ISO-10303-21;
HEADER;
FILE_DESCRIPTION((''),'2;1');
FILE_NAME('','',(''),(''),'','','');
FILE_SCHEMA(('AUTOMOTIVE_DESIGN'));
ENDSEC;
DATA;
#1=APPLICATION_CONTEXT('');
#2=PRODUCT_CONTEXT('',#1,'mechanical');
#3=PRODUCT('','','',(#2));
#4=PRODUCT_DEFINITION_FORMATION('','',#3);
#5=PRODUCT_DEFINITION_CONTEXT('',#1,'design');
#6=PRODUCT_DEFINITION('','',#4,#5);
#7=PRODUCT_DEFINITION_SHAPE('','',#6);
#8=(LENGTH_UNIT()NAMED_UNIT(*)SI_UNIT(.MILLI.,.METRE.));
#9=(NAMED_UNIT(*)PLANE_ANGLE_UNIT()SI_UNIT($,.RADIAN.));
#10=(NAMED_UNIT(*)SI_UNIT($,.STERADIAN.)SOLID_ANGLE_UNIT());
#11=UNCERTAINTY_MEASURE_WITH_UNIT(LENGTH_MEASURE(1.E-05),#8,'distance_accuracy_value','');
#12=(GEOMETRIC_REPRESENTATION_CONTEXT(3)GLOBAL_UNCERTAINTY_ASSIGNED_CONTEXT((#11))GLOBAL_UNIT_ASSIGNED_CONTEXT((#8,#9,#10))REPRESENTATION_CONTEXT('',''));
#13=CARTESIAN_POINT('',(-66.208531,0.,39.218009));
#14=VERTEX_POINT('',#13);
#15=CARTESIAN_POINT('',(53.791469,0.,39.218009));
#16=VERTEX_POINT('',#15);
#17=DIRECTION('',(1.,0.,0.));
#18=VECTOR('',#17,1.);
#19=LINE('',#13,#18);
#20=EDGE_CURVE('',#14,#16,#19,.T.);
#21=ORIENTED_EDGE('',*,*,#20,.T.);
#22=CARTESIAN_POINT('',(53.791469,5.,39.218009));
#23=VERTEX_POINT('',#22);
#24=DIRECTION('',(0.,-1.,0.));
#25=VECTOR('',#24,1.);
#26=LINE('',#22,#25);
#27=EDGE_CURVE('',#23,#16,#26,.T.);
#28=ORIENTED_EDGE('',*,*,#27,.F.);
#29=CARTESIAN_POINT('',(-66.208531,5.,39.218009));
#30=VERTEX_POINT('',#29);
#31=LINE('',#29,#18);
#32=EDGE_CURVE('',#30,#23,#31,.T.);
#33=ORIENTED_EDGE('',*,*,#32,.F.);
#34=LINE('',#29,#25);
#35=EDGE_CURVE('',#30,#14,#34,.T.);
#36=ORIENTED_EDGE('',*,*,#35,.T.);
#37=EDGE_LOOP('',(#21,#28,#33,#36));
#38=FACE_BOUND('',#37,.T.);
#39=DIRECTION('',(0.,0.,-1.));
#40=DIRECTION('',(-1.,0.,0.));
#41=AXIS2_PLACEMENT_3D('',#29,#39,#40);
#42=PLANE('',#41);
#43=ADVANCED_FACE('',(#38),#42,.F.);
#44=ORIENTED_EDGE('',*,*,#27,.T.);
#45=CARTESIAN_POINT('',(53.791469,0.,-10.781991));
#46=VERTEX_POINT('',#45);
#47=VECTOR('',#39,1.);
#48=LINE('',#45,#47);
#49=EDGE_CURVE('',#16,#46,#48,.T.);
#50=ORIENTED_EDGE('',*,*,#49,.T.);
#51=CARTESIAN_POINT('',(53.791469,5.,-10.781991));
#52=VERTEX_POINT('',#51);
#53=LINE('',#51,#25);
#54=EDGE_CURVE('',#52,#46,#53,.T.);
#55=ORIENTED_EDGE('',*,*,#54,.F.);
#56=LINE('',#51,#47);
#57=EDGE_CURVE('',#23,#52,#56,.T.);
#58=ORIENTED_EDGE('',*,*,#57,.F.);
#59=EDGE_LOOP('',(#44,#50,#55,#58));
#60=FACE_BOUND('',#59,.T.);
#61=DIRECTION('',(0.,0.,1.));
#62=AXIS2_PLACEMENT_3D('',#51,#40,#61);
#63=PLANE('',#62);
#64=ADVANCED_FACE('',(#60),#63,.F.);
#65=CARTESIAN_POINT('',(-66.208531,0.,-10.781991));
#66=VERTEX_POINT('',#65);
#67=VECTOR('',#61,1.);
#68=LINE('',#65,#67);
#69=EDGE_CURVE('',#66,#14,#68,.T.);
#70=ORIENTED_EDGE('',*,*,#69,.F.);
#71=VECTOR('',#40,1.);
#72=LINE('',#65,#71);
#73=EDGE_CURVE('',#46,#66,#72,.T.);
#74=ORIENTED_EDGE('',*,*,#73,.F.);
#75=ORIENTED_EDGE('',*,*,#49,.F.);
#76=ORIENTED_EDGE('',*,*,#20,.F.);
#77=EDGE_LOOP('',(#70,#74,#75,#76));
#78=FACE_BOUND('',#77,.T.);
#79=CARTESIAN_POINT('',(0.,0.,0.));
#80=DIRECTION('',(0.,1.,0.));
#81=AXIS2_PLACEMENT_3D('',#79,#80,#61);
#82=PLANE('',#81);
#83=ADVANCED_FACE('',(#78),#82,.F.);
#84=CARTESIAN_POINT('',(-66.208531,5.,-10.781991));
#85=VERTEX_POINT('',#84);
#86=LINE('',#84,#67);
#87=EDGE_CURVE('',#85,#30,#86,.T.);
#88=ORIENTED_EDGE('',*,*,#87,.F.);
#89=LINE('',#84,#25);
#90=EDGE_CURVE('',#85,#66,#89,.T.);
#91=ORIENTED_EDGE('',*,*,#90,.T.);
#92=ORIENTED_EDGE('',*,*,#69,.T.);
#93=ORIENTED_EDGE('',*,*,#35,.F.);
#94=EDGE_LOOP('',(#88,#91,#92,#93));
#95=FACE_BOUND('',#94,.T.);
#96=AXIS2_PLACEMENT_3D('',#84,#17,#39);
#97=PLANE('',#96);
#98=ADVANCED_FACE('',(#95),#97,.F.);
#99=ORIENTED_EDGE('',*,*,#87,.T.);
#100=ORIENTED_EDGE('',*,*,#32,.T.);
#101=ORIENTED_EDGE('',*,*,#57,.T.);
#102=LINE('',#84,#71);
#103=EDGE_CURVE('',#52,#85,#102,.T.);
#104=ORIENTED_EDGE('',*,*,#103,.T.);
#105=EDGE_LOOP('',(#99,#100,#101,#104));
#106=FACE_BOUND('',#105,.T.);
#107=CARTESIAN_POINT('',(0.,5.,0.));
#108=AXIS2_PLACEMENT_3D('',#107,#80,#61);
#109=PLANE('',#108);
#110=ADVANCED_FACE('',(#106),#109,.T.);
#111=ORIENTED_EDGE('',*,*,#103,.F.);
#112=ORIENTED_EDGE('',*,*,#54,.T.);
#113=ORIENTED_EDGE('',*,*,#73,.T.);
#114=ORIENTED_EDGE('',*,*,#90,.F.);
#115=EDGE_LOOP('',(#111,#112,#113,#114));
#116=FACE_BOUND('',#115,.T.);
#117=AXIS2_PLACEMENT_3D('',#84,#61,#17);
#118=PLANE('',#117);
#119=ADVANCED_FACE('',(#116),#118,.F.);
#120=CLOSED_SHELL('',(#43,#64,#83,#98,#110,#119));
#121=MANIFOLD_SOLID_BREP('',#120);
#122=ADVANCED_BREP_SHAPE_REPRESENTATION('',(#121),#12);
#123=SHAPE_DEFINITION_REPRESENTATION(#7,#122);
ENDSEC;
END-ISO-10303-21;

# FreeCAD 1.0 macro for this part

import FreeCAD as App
import Part
import Sketcher

doc = App.newDocument("Part")
params = doc.addObject("Spreadsheet::Sheet", "Params")
for row, (alias, value) in enumerate([
    ("sketch1_width", "120 mm"),
    ("sketch1_height", "50 mm"),
    ("pad1_length", "5 mm"),
], start=1):
    params.set(f"A{row}", alias)
    params.set(f"B{row}", "=" + value)
    params.setAlias(f"B{row}", alias)

body = doc.addObject("PartDesign::Body", "Body")

# Sketch on XZ plane
sketch1 = body.newObject("Sketcher::SketchObject", "Sketch")
sketch1.AttachmentSupport = (doc.getObject("XZ_Plane"), [""])
sketch1.MapMode = "FlatFace"
sketch1.addGeometry(Part.LineSegment(App.Vector(-66, -11, 0), App.Vector(-66, 39, 0)), False)
sketch1.addGeometry(Part.LineSegment(App.Vector(-66, 39, 0), App.Vector(54, 39, 0)), False)
sketch1.addGeometry(Part.LineSegment(App.Vector(54, 39, 0), App.Vector(54, -11, 0)), False)
sketch1.addGeometry(Part.LineSegment(App.Vector(54, -11, 0), App.Vector(-66, -11, 0)), False)
sketch1.addConstraint(Sketcher.Constraint("Coincident", 0, 2, 1, 1))
sketch1.addConstraint(Sketcher.Constraint("Coincident", 1, 2, 2, 1))
sketch1.addConstraint(Sketcher.Constraint("Coincident", 2, 2, 3, 1))
sketch1.addConstraint(Sketcher.Constraint("Coincident", 3, 2, 0, 1))
sketch1.addConstraint(Sketcher.Constraint("Vertical", 0))
sketch1.addConstraint(Sketcher.Constraint("Horizontal", 1))
sketch1.addConstraint(Sketcher.Constraint("Vertical", 2))
sketch1.addConstraint(Sketcher.Constraint("Horizontal", 3))
sketch1.addConstraint(Sketcher.Constraint("DistanceX", 1, 1, 1, 2, 120.0))
sketch1.addConstraint(Sketcher.Constraint("DistanceY", 0, 1, 0, 2, 50.0))
sketch1.addConstraint(Sketcher.Constraint("DistanceX", 0, 2, -1, 1, 66.208531))
sketch1.addConstraint(Sketcher.Constraint("DistanceY", -1, 1, 0, 2, 39.218009))
sketch1.setExpression("Constraints[8]", "Params.sketch1_width")
sketch1.setExpression("Constraints[9]", "Params.sketch1_height")
pad1 = body.newObject("PartDesign::Pad", "Pad")
pad1.Profile = sketch1
pad1.setExpression("Length", "Params.pad1_length")
pad1.Reversed = True

doc.recompute()
